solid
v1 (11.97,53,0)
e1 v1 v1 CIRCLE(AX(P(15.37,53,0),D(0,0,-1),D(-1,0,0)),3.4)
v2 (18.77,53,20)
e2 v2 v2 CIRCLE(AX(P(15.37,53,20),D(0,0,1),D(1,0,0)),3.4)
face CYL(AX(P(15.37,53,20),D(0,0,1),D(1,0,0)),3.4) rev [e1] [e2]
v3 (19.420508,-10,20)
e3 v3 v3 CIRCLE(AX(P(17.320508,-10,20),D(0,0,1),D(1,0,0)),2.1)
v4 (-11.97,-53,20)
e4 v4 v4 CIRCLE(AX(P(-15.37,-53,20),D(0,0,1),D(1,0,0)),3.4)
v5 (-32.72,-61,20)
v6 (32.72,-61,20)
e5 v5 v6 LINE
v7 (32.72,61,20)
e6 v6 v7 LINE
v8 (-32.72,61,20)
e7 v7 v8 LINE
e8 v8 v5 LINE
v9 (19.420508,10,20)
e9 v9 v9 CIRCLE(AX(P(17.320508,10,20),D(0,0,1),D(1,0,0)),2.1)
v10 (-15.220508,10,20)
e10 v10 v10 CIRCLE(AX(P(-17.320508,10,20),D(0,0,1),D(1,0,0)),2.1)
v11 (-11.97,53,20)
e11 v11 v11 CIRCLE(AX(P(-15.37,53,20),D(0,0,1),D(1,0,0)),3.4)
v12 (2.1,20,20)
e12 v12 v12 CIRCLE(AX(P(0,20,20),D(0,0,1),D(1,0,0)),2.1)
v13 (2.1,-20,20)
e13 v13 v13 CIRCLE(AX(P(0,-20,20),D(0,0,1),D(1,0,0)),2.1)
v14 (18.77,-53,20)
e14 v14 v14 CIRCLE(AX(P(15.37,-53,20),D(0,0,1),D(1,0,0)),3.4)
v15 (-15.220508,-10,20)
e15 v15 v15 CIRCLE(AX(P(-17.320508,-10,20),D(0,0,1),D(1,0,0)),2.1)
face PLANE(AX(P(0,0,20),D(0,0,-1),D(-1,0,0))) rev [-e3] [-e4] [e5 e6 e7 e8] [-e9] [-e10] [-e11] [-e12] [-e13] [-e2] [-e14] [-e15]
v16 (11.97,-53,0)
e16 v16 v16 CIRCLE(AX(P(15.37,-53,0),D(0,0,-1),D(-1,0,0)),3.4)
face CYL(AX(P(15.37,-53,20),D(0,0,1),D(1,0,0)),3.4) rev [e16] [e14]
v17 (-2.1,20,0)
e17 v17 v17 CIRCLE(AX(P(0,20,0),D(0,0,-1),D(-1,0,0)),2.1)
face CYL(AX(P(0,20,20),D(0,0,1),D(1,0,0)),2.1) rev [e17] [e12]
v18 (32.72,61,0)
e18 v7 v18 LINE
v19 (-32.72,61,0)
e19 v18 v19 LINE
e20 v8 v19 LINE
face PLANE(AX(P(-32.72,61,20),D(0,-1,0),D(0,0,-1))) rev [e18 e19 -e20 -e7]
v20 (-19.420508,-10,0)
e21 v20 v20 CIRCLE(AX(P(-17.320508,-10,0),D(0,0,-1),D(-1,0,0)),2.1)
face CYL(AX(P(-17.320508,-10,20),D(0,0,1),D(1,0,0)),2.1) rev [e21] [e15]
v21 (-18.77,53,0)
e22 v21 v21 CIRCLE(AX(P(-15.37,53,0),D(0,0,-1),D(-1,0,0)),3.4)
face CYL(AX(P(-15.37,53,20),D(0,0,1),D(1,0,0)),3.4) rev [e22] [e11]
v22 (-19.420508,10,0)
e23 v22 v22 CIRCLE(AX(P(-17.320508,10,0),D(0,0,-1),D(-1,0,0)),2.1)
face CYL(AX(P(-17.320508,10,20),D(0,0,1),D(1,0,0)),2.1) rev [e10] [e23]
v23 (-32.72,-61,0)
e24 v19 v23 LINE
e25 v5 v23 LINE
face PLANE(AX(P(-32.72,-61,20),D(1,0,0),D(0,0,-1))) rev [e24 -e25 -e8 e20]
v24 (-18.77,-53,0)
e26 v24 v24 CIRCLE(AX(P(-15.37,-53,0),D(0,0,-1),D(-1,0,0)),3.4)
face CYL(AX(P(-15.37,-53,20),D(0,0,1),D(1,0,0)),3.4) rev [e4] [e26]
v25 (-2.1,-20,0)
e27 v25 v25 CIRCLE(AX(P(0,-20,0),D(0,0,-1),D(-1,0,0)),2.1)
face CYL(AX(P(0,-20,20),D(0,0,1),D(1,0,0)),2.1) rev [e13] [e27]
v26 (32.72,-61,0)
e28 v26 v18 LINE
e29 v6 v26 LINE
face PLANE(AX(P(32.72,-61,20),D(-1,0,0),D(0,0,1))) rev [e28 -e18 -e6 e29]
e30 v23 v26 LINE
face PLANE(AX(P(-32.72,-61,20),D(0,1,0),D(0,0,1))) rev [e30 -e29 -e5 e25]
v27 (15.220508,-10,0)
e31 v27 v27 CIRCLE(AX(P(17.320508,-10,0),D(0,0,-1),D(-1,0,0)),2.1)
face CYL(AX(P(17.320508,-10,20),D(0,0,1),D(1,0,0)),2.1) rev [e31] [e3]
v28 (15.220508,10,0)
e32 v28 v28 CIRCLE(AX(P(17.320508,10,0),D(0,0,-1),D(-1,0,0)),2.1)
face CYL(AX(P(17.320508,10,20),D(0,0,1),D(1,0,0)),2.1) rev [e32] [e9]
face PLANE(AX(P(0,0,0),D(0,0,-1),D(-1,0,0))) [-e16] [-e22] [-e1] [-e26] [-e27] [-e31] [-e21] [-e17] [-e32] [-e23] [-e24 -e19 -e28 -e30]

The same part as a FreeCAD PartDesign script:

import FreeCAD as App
import Part
import Sketcher
from FreeCAD import Vector

doc = App.newDocument("Part")
params = doc.addObject("Spreadsheet::Sheet", "Params")
for row, (alias, value) in enumerate([
    ("sketch1_height", "122 mm"),
    ("sketch1_width", "65.44 mm"),
    ("pad1_length", "20 mm"),
    ("sketch2_diameter", "4.2 mm"),
    ("hole_diameter", "4.2 mm"),
    ("hole_depth", "20 mm"),
    ("sketch3_diameter", "6.8 mm"),
    ("hole2_diameter", "6.8 mm"),
    ("hole2_depth", "20 mm"),
], start=1):
    params.set(f"A{row}", alias)
    params.set(f"B{row}", "=" + value)
    params.setAlias(f"B{row}", alias)

body = doc.addObject("PartDesign::Body", "Body")

# Sketch on XY plane
sketch1 = body.newObject("Sketcher::SketchObject", "Sketch")
sketch1.AttachmentSupport = (doc.getObject("XY_Plane"), [""])
sketch1.MapMode = "FlatFace"
sketch1.addGeometry([
    Part.LineSegment(Vector(-33, 61, 0), Vector(-33, -61, 0)),
    Part.LineSegment(Vector(-33, -61, 0), Vector(33, -61, 0)),
    Part.LineSegment(Vector(33, -61, 0), Vector(33, 61, 0)),
    Part.LineSegment(Vector(33, 61, 0), Vector(-33, 61, 0)),
], False)
sketch1.addConstraint([
    Sketcher.Constraint("Coincident", 0, 2, 1, 1),
    Sketcher.Constraint("Coincident", 1, 2, 2, 1),
    Sketcher.Constraint("Coincident", 2, 2, 3, 1),
    Sketcher.Constraint("Coincident", 3, 2, 0, 1),
    Sketcher.Constraint("Vertical", 0),
    Sketcher.Constraint("Horizontal", 1),
    Sketcher.Constraint("Vertical", 2),
    Sketcher.Constraint("Horizontal", 3),
    Sketcher.Constraint("Symmetric", 0, 2, 2, 2, -1, 1),
    Sketcher.Constraint("DistanceY", 0, 2, 0, 1, 122.0),
    Sketcher.Constraint("DistanceX", 1, 1, 1, 2, 65.44),
])
sketch1.setExpression("Constraints[9]", "Params.sketch1_height")
sketch1.setExpression("Constraints[10]", "Params.sketch1_width")
pad1 = body.newObject("PartDesign::Pad", "Pad")
pad1.Profile = sketch1
pad1.setExpression("Length", "Params.pad1_length")

# Sketch on XY plane
sketch2 = body.newObject("Sketcher::SketchObject", "Sketch001")
sketch2.AttachmentSupport = (doc.getObject("XY_Plane"), [""])
sketch2.MapMode = "FlatFace"
sketch2.AttachmentOffset = App.Placement(Vector(0, 0, 20), App.Rotation())
sketch2.addGeometry([
    Part.Circle(Vector(0, 20, 0), Vector(0, 0, 1), 2.1),  # 0
    Part.Circle(Vector(-17.3, 10, 0), Vector(0, 0, 1), 2.1),  # 1
    Part.Circle(Vector(-17.3, -10, 0), Vector(0, 0, 1), 2.1),  # 2
    Part.Circle(Vector(0, -20, 0), Vector(0, 0, 1), 2.1),  # 3
    Part.Circle(Vector(17.3, -10, 0), Vector(0, 0, 1), 2.1),  # 4
    Part.Circle(Vector(17.3, 10, 0), Vector(0, 0, 1), 2.1),  # 5
], False)
sketch2.addConstraint([
    Sketcher.Constraint("Equal", 0, 1),
    Sketcher.Constraint("Equal", 1, 2),
    Sketcher.Constraint("Equal", 2, 3),
    Sketcher.Constraint("Equal", 3, 4),
    Sketcher.Constraint("Equal", 4, 5),
    Sketcher.Constraint("Symmetric", 0, 3, 3, 3, -1, 1),
    Sketcher.Constraint("Symmetric", 1, 3, 4, 3, -1, 1),
    Sketcher.Constraint("Symmetric", 2, 3, 5, 3, -1, 1),
    Sketcher.Constraint("Symmetric", 2, 3, 4, 3, -2),
    Sketcher.Constraint("PointOnObject", 0, 3, -2),
    Sketcher.Constraint("Diameter", 0, 4.2),
    Sketcher.Constraint("DistanceY", -1, 1, 0, 3, 20.0),
    Sketcher.Constraint("DistanceY", -1, 1, 1, 3, 10.0),
    Sketcher.Constraint("DistanceX", 1, 3, -1, 1, 17.320508),
])
sketch2.setExpression("Constraints[10]", "Params.sketch2_diameter")
doc.recompute()
hole = body.newObject("PartDesign::Hole", "Hole")
hole.Profile = sketch2
hole.ThreadType = "None"
hole.setExpression("Diameter", "Params.hole_diameter")
hole.DepthType = "Dimension"
hole.setExpression("Depth", "Params.hole_depth")
hole.DrillPoint = "Flat"

# Sketch on XY plane
sketch3 = body.newObject("Sketcher::SketchObject", "Sketch002")
sketch3.AttachmentSupport = (doc.getObject("XY_Plane"), [""])
sketch3.MapMode = "FlatFace"
sketch3.AttachmentOffset = App.Placement(Vector(0, 0, 20), App.Rotation())
sketch3.addGeometry([
    Part.Circle(Vector(-15.4, 53, 0), Vector(0, 0, 1), 3.4),
    Part.Circle(Vector(15.4, 53, 0), Vector(0, 0, 1), 3.4),
    Part.Circle(Vector(15.4, -53, 0), Vector(0, 0, 1), 3.4),
    Part.Circle(Vector(-15.4, -53, 0), Vector(0, 0, 1), 3.4),
], False)
sketch3.addConstraint([
    Sketcher.Constraint("Equal", 0, 1),
    Sketcher.Constraint("Equal", 1, 2),
    Sketcher.Constraint("Equal", 2, 3),
    Sketcher.Constraint("Symmetric", 0, 3, 2, 3, -1, 1),
    Sketcher.Constraint("Symmetric", 1, 3, 3, 3, -1, 1),
    Sketcher.Constraint("Symmetric", 0, 3, 1, 3, -2),
    Sketcher.Constraint("Diameter", 0, 6.8),
    Sketcher.Constraint("DistanceY", -1, 1, 0, 3, 53.0),
    Sketcher.Constraint("DistanceX", 0, 3, -1, 1, 15.37),
])
sketch3.setExpression("Constraints[6]", "Params.sketch3_diameter")
doc.recompute()
hole2 = body.newObject("PartDesign::Hole", "Hole001")
hole2.Profile = sketch3
hole2.ThreadType = "None"
hole2.setExpression("Diameter", "Params.hole2_diameter")
hole2.DepthType = "Dimension"
hole2.setExpression("Depth", "Params.hole2_depth")
hole2.DrillPoint = "Flat"

doc.recompute()
